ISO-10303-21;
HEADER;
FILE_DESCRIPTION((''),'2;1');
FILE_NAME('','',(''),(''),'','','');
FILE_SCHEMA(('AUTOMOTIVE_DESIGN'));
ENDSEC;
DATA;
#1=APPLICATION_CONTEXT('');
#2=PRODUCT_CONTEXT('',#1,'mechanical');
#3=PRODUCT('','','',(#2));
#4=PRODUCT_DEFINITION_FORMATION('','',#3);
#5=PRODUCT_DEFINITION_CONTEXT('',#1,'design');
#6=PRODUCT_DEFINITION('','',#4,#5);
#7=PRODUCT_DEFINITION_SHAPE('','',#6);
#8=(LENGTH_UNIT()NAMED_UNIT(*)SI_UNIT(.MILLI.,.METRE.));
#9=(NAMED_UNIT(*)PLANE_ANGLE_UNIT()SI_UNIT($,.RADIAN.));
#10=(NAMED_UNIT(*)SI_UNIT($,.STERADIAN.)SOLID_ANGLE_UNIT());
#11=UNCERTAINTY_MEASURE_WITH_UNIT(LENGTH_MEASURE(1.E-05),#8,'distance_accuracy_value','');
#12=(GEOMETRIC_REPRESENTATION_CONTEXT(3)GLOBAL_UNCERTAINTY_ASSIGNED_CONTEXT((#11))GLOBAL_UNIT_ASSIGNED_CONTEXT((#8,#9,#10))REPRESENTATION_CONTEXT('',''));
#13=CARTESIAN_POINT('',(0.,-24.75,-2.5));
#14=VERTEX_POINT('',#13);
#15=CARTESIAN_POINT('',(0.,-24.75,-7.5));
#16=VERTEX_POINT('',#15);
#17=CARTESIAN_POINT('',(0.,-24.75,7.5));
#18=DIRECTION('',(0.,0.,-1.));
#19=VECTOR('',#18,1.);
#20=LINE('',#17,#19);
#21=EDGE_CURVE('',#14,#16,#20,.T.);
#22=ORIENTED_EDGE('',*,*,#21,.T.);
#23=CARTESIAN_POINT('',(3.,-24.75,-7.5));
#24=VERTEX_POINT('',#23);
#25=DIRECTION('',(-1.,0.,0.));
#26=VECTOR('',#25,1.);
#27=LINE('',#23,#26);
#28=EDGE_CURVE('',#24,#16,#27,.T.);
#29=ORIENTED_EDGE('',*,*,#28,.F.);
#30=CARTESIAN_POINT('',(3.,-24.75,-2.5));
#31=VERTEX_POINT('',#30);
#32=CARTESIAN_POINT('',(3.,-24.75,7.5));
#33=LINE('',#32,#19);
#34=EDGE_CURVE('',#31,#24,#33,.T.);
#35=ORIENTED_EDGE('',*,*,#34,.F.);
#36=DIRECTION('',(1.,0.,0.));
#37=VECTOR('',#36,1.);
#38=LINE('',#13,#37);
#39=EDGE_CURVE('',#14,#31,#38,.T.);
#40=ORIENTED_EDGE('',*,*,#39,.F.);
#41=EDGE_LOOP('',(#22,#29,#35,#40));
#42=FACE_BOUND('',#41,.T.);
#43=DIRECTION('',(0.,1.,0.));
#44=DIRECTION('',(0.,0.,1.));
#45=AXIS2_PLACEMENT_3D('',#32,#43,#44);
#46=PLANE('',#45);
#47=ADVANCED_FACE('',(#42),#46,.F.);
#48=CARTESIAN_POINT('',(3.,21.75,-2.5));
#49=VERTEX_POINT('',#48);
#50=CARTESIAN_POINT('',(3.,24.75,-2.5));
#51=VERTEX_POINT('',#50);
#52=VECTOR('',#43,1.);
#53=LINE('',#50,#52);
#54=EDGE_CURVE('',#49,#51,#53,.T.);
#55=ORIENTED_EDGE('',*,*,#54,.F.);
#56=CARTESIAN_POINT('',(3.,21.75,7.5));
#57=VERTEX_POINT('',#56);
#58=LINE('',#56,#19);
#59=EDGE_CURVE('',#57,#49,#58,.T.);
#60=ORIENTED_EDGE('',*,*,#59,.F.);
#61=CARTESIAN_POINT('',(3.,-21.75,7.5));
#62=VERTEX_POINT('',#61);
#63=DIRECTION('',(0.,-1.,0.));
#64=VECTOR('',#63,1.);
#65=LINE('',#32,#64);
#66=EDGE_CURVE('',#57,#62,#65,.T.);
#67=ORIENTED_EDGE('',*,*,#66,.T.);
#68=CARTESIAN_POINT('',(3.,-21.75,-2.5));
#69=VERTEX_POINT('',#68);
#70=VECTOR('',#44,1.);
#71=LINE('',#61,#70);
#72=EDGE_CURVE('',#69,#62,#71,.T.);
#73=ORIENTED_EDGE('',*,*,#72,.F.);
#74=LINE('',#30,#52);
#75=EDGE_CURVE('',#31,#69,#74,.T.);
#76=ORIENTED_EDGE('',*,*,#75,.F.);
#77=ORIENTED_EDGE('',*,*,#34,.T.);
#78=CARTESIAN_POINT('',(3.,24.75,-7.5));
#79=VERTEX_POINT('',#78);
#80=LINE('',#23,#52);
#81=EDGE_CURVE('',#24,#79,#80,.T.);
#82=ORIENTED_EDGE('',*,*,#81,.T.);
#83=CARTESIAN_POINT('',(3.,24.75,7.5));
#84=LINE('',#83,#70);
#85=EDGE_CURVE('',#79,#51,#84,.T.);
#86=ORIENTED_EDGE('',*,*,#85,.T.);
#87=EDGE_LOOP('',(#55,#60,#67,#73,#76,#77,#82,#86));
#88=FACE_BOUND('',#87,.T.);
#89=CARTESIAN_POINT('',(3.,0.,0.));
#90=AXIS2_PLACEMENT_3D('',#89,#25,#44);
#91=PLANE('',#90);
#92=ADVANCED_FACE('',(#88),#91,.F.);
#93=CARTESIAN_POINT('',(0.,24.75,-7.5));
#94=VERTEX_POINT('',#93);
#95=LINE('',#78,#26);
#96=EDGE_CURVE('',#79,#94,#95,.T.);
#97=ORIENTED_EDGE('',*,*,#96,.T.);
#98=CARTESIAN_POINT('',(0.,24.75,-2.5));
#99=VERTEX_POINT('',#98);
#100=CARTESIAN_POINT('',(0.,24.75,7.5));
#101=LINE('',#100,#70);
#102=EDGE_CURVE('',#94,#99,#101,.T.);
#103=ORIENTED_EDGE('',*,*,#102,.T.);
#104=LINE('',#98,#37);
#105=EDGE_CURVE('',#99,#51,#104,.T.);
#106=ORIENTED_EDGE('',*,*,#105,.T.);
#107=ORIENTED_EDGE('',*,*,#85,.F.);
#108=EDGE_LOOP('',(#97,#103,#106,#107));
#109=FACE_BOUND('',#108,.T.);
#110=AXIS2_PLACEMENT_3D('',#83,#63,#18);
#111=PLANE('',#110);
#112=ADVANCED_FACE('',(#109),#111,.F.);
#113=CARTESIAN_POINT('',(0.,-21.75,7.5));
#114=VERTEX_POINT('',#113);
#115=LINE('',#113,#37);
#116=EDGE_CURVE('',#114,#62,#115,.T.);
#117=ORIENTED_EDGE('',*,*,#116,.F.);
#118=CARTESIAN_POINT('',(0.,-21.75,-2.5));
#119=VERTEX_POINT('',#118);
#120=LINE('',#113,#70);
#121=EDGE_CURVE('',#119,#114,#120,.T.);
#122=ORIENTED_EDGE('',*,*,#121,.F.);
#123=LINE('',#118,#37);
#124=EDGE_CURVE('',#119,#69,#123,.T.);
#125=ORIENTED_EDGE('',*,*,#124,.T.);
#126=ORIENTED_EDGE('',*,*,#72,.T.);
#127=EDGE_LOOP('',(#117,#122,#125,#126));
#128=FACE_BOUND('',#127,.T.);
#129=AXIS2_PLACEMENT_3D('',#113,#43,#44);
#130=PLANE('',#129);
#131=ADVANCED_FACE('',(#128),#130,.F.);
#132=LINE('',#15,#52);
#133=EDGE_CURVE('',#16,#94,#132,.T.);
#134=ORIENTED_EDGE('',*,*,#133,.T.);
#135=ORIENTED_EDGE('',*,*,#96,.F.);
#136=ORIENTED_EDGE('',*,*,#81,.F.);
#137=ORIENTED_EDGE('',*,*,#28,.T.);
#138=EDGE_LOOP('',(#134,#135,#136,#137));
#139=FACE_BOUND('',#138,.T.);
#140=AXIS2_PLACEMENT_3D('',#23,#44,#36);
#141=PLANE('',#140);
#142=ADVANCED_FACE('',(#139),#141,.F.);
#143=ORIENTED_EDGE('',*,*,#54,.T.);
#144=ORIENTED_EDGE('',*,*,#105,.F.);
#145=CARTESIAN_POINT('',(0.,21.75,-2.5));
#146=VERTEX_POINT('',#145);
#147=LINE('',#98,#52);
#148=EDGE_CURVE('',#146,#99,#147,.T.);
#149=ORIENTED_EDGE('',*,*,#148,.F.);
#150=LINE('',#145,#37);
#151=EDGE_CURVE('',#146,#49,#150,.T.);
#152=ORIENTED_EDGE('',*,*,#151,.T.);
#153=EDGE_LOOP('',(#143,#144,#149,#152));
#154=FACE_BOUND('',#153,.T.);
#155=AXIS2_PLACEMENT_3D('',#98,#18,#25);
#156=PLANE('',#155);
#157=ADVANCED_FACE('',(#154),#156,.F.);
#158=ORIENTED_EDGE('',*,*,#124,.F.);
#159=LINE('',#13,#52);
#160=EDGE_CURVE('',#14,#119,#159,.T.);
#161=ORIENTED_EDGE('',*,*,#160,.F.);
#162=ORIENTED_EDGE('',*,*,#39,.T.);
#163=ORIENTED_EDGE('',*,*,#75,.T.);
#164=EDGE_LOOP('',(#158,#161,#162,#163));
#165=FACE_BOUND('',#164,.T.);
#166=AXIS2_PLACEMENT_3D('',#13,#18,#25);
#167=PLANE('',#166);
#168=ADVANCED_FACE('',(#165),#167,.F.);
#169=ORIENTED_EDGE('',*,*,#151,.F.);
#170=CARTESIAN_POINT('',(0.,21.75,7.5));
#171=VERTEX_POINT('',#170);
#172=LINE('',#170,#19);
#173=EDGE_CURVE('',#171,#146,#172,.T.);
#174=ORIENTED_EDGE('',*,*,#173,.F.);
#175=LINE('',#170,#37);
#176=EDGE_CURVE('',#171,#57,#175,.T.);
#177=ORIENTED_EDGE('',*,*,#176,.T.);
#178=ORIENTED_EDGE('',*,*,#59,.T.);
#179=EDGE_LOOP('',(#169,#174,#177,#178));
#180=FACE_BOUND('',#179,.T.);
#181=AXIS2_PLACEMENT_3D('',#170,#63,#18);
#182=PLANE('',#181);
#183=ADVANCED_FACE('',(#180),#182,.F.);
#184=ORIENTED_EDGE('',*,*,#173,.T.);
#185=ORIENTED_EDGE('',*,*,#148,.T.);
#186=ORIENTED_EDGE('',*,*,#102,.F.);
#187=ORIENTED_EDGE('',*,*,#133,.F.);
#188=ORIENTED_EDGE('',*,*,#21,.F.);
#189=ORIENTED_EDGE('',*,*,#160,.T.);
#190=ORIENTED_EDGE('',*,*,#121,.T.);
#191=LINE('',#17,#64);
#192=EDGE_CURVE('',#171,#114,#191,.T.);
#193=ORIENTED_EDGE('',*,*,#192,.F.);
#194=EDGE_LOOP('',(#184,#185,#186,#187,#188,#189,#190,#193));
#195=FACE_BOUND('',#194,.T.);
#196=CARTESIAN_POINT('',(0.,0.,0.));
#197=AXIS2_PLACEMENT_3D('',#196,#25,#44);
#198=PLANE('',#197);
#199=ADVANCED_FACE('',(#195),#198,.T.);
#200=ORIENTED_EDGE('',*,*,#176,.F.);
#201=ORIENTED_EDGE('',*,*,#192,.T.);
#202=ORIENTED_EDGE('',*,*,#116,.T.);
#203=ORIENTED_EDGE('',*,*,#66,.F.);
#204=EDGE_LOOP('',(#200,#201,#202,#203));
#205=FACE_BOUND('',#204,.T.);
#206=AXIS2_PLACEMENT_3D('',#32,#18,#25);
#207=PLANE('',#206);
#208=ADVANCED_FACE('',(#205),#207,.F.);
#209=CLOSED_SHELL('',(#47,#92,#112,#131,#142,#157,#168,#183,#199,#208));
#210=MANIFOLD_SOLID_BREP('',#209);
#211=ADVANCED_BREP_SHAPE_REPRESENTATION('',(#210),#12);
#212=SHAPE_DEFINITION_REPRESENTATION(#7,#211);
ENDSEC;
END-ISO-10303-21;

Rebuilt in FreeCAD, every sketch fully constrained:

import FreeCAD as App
import Part
import Sketcher
from FreeCAD import Vector
Q = App.Units.Quantity

doc = App.newDocument("Part")
body = doc.addObject("PartDesign::Body", "Body")

sketch1 = body.newObject("Sketcher::SketchObject", "Sketch")
sketch1.AttachmentSupport = (doc.getObject("YZ_Plane"), [""])
sketch1.MapMode = "FlatFace"
sketch1.addGeometry([
    Part.LineSegment(Vector(25, 8, 0), Vector(-25, 8, 0)),
    Part.LineSegment(Vector(-25, 8, 0), Vector(-25, -8, 0)),
    Part.LineSegment(Vector(-25, -8, 0), Vector(25, -8, 0)),
    Part.LineSegment(Vector(25, -8, 0), Vector(25, 8, 0)),
], False)
sketch1.addConstraint([
    Sketcher.Constraint("Coincident", 0, 2, 1, 1),
    Sketcher.Constraint("Coincident", 1, 2, 2, 1),
    Sketcher.Constraint("Coincident", 2, 2, 3, 1),
    Sketcher.Constraint("Coincident", 3, 2, 0, 1),
    Sketcher.Constraint("Horizontal", 0),
    Sketcher.Constraint("Vertical", 1),
    Sketcher.Constraint("Horizontal", 2),
    Sketcher.Constraint("Vertical", 3),
    Sketcher.Constraint("Symmetric", 0, 2, 2, 2, -1, 1),
    Sketcher.Constraint("DistanceY", 1, 2, 1, 1, Q("15 mm")),
    Sketcher.Constraint("DistanceX", 0, 2, 0, 1, Q("49.5 mm")),
])
pad1 = body.newObject("PartDesign::Pad", "Pad")
pad1.Profile = sketch1
pad1.Length = 3

sketch2 = body.newObject("Sketcher::SketchObject", "Sketch001")
sketch2.AttachmentSupport = (doc.getObject("YZ_Plane"), [""])
sketch2.MapMode = "FlatFace"
sketch2.AttachmentOffset = App.Placement(Vector(0, 0, 3), App.Rotation())
sketch2.addGeometry([
    Part.LineSegment(Vector(24.8, 7.5, 0), Vector(21.8, 7.5, 0)),
    Part.LineSegment(Vector(21.8, 7.5, 0), Vector(21.8, -2.5, 0)),
    Part.LineSegment(Vector(21.8, -2.5, 0), Vector(24.8, -2.5, 0)),
    Part.LineSegment(Vector(24.8, -2.5, 0), Vector(24.8, 7.5, 0)),
    Part.LineSegment(Vector(-21.8, 7.5, 0), Vector(-24.8, 7.5, 0)),
    Part.LineSegment(Vector(-24.8, 7.5, 0), Vector(-24.8, -2.5, 0)),
    Part.LineSegment(Vector(-24.8, -2.5, 0), Vector(-21.8, -2.5, 0)),
    Part.LineSegment(Vector(-21.8, -2.5, 0), Vector(-21.8, 7.5, 0)),
], False)
sketch2.addConstraint([
    Sketcher.Constraint("Coincident", 0, 2, 1, 1),
    Sketcher.Constraint("Coincident", 1, 2, 2, 1),
    Sketcher.Constraint("Coincident", 2, 2, 3, 1),
    Sketcher.Constraint("Coincident", 3, 2, 0, 1),
    Sketcher.Constraint("Coincident", 4, 2, 5, 1),
    Sketcher.Constraint("Coincident", 5, 2, 6, 1),
    Sketcher.Constraint("Coincident", 6, 2, 7, 1),
    Sketcher.Constraint("Coincident", 7, 2, 4, 1),
    Sketcher.Constraint("Horizontal", 0),
    Sketcher.Constraint("Vertical", 1),
    Sketcher.Constraint("Horizontal", 2),
    Sketcher.Constraint("Vertical", 3),
    Sketcher.Constraint("Horizontal", 4),
    Sketcher.Constraint("Vertical", 5),
    Sketcher.Constraint("Horizontal", 6),
    Sketcher.Constraint("Vertical", 7),
    Sketcher.Constraint("Symmetric", 3, 2, 4, 2, -2),
    Sketcher.Constraint("Symmetric", 1, 2, 6, 2, -2),
    Sketcher.Constraint("DistanceX", 0, 2, 0, 1, Q("3 mm")),
    Sketcher.Constraint("DistanceY", 1, 2, 1, 1, Q("10 mm")),
    Sketcher.Constraint("DistanceY", -1, 1, 0, 2, Q("7.5 mm")),
    Sketcher.Constraint("DistanceX", 4, 2, 0, 2, Q("46.5 mm")),
])
pocket1 = body.newObject("PartDesign::Pocket", "Pocket")
pocket1.Profile = sketch2
pocket1.Type = "ThroughAll"

doc.recompute()
